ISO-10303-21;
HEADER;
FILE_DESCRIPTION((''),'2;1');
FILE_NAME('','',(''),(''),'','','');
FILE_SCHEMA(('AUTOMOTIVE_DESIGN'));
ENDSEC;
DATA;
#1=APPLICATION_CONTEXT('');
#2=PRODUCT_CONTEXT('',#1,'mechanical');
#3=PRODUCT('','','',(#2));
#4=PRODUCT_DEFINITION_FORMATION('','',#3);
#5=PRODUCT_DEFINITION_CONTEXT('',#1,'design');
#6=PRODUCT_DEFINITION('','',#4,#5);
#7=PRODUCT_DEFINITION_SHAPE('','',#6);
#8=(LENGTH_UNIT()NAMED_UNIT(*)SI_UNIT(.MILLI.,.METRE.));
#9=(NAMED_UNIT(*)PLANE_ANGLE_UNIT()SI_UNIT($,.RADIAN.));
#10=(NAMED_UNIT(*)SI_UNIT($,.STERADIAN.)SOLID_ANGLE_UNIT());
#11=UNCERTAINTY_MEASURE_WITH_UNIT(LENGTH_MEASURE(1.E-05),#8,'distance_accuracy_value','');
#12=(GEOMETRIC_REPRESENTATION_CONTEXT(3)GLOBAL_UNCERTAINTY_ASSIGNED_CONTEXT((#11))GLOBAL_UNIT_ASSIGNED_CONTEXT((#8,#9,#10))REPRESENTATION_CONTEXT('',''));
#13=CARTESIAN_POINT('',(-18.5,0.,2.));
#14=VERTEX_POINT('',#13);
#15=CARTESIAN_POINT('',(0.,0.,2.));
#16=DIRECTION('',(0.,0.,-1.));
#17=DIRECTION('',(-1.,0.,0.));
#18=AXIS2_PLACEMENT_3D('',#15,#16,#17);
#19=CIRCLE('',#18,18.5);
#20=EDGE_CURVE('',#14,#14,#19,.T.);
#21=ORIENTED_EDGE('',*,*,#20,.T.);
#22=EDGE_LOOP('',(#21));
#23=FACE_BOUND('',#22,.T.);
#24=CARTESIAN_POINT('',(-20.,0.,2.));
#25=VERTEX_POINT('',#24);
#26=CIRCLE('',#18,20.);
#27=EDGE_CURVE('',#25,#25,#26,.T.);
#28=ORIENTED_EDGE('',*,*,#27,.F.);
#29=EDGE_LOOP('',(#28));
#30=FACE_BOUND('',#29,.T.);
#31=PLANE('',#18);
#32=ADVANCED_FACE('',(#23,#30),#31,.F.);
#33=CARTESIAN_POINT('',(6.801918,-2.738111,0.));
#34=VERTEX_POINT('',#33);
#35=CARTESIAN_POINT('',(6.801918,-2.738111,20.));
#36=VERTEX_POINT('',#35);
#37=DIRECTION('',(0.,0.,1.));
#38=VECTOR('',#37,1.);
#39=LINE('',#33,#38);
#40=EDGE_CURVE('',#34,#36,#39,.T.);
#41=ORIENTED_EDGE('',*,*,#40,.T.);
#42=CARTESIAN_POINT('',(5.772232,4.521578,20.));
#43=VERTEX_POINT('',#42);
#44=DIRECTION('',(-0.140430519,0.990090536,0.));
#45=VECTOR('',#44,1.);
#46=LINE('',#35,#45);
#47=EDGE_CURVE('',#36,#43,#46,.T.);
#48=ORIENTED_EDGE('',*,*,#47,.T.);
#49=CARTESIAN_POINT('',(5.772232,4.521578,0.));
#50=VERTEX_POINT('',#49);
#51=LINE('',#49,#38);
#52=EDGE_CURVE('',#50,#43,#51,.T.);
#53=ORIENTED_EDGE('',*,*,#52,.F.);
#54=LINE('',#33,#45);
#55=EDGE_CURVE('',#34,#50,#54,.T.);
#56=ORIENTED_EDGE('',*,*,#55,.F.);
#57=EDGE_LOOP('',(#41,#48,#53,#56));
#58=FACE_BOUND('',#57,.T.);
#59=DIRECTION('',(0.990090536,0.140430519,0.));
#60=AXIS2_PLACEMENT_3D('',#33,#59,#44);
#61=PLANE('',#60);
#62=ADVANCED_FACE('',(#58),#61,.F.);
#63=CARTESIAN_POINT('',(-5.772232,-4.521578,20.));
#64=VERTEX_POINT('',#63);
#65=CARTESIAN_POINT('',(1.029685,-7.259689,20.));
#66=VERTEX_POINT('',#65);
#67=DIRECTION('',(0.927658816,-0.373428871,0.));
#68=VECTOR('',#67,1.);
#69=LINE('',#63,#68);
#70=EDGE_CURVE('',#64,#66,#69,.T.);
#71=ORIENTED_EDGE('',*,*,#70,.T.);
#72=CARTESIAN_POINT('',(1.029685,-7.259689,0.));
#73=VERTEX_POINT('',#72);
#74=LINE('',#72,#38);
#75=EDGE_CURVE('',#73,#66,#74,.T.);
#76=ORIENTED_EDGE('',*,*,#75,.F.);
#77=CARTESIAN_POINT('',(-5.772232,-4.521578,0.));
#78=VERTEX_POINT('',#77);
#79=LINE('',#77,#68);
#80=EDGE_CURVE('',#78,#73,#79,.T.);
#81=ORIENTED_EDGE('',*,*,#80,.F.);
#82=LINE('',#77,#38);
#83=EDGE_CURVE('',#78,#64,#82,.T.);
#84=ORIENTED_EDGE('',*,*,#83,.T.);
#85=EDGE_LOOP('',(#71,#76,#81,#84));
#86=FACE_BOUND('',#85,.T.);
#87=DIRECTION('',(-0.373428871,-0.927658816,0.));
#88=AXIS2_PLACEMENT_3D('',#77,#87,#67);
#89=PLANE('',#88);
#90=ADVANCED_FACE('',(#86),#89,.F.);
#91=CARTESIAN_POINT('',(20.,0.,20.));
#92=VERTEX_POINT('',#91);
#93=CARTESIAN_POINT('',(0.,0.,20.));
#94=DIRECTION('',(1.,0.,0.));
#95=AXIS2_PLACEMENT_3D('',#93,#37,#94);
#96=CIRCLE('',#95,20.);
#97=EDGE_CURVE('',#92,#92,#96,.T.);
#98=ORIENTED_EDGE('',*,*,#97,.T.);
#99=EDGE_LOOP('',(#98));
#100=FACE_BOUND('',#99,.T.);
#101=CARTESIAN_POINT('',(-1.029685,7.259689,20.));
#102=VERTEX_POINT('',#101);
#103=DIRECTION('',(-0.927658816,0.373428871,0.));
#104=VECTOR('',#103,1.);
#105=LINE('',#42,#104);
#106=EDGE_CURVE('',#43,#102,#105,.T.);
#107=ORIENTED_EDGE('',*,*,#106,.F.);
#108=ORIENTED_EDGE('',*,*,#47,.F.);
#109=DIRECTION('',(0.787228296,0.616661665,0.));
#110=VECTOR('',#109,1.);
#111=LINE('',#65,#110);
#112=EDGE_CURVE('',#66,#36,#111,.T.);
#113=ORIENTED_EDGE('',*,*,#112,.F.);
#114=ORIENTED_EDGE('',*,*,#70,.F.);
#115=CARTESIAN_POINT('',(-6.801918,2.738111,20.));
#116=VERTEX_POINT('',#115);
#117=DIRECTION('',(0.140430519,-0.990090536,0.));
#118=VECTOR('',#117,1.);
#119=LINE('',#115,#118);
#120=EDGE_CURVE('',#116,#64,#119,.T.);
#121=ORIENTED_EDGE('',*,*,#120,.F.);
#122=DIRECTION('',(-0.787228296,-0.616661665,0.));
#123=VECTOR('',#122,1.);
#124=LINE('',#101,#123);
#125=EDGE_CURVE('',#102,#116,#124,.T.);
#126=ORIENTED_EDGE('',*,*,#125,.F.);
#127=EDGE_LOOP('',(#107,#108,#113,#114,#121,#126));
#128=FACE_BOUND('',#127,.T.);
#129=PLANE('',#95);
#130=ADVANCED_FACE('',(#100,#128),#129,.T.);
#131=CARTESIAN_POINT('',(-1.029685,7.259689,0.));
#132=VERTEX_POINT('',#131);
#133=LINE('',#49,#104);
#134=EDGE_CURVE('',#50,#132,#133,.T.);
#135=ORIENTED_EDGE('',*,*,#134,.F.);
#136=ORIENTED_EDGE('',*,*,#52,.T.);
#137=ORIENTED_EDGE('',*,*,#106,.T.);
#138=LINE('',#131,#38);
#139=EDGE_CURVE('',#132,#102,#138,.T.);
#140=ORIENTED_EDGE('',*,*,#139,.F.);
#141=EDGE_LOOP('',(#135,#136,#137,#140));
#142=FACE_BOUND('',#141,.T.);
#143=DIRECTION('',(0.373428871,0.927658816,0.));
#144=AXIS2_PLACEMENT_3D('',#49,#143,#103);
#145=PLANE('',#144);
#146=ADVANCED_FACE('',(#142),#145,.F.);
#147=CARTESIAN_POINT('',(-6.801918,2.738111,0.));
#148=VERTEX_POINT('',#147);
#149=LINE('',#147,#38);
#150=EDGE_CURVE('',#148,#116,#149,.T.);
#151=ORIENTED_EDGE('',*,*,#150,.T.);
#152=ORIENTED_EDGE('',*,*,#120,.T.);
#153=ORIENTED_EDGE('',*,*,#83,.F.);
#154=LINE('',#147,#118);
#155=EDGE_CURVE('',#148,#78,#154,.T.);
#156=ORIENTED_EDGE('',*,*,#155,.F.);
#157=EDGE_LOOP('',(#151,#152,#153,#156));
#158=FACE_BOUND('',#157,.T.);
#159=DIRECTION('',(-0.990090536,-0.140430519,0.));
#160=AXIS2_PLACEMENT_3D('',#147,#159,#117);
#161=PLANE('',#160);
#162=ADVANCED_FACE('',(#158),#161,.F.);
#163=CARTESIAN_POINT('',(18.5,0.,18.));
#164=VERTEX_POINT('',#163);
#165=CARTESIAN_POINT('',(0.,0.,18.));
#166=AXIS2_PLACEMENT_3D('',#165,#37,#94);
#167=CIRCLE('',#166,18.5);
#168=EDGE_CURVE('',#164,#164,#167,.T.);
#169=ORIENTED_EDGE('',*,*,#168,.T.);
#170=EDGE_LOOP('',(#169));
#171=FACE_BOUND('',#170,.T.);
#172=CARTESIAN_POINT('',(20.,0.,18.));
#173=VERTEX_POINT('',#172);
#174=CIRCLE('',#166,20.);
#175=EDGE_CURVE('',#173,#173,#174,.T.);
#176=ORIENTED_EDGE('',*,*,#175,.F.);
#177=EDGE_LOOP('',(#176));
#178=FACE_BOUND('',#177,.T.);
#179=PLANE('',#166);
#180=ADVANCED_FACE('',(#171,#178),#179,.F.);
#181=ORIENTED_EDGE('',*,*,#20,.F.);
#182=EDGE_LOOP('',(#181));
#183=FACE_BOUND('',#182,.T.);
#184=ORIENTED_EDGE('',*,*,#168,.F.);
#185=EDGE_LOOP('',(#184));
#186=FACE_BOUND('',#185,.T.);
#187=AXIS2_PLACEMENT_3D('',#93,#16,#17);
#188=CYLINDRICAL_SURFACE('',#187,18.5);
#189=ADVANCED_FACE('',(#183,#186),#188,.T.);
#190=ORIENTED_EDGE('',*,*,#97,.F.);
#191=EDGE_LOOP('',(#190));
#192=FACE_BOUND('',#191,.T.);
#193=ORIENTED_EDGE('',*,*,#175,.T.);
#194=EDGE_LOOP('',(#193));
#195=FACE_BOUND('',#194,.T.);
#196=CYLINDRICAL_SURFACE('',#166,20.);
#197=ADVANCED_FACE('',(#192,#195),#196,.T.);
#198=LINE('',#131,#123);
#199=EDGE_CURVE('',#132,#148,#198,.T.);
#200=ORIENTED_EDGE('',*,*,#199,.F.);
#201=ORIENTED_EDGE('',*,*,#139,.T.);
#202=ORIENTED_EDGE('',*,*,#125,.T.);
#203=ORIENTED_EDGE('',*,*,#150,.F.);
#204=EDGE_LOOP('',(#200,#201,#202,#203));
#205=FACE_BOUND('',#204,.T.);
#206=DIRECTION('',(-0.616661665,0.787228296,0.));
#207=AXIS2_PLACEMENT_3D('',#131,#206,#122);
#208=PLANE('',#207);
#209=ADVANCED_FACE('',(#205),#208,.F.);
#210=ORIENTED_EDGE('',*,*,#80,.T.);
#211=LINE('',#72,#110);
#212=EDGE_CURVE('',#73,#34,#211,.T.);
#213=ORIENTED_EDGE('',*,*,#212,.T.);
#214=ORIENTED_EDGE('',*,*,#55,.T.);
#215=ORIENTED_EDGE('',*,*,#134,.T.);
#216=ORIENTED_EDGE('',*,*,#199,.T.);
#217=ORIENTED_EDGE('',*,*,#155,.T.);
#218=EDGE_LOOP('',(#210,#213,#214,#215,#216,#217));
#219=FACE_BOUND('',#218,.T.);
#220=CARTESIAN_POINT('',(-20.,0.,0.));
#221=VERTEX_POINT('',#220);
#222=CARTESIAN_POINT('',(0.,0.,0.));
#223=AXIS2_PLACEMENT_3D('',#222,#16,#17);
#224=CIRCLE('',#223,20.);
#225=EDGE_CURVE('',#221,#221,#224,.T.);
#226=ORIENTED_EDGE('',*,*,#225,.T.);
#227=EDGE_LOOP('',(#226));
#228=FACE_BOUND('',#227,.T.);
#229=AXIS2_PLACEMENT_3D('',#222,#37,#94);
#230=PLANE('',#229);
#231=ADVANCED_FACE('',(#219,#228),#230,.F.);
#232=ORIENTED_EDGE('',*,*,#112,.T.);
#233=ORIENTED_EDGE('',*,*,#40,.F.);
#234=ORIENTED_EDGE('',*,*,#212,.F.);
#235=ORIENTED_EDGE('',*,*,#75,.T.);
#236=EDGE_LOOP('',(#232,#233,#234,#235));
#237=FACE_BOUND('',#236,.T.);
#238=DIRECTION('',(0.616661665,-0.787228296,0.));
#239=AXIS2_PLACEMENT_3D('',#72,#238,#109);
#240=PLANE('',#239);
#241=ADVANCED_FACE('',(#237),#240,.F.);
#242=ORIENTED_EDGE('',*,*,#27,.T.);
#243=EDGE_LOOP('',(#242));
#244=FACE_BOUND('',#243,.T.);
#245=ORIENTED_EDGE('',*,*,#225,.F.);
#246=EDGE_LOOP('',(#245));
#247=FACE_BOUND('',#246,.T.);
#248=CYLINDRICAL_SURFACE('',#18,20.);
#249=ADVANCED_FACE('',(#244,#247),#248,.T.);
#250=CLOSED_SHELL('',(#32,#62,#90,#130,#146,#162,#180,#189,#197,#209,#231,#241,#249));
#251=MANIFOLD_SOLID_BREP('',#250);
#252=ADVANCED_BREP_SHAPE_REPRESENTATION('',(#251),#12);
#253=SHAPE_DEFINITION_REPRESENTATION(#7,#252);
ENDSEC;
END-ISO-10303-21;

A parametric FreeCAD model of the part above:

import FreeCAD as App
import Part
import Sketcher
from FreeCAD import Vector

doc = App.newDocument("Part")
body = doc.addObject("PartDesign::Body", "Body")

# Sketch on XY plane
sketch1 = body.newObject("Sketcher::SketchObject", "Sketch")
sketch1.AttachmentSupport = (doc.getObject("XY_Plane"), [""])
sketch1.MapMode = "FlatFace"
sketch1.addGeometry(Part.Circle(Vector(0, 0, 0), Vector(0, 0, 1), 18), False)
sketch1.addConstraint([
    Sketcher.Constraint("Coincident", 0, 3, -1, 1),
    Sketcher.Constraint("Diameter", 0, 37.0),
])
pad1 = body.newObject("PartDesign::Pad", "Pad")
pad1.Profile = sketch1
pad1.Length = 20

# Sketch on XY plane
sketch2 = body.newObject("Sketcher::SketchObject", "Sketch001")
sketch2.AttachmentSupport = (doc.getObject("XY_Plane"), [""])
sketch2.MapMode = "FlatFace"
sketch2.AttachmentOffset = App.Placement(Vector(0, 0, 20), App.Rotation())
sketch2.addGeometry(Part.Circle(Vector(0, 0, 0), Vector(0, 0, 1), 20), False)
sketch2.addConstraint([
    Sketcher.Constraint("Coincident", 0, 3, -1, 1),
    Sketcher.Constraint("Diameter", 0, 40.0),
])
pad2 = body.newObject("PartDesign::Pad", "Pad001")
pad2.Profile = sketch2
pad2.Length = 2
pad2.Reversed = True

# Sketch on XY plane
sketch3 = body.newObject("Sketcher::SketchObject", "Sketch002")
sketch3.AttachmentSupport = (doc.getObject("XY_Plane"), [""])
sketch3.MapMode = "FlatFace"
sketch3.addGeometry(Part.Circle(Vector(0, 0, 0), Vector(0, 0, 1), 20), False)
sketch3.addConstraint([
    Sketcher.Constraint("Coincident", 0, 3, -1, 1),
    Sketcher.Constraint("Diameter", 0, 40.0),
])
pad3 = body.newObject("PartDesign::Pad", "Pad002")
pad3.Profile = sketch3
pad3.Length = 2

# Sketch on XY plane
sketch4 = body.newObject("Sketcher::SketchObject", "Sketch003")
sketch4.AttachmentSupport = (doc.getObject("XY_Plane"), [""])
sketch4.MapMode = "FlatFace"
sketch4.AttachmentOffset = App.Placement(Vector(0, 0, 20), App.Rotation())
sketch4.addGeometry([
    Part.LineSegment(Vector(6, 5, 0), Vector(-1, 7, 0)),  # 0
    Part.LineSegment(Vector(-1, 7, 0), Vector(-7, 3, 0)),  # 1
    Part.LineSegment(Vector(-7, 3, 0), Vector(-6, -5, 0)),  # 2
    Part.LineSegment(Vector(-6, -5, 0), Vector(1, -7, 0)),  # 3
    Part.LineSegment(Vector(1, -7, 0), Vector(7, -3, 0)),  # 4
    Part.LineSegment(Vector(7, -3, 0), Vector(6, 5, 0)),  # 5
], False)
sketch4.addConstraint([
    Sketcher.Constraint("Coincident", 0, 2, 1, 1),
    Sketcher.Constraint("Coincident", 1, 2, 2, 1),
    Sketcher.Constraint("Coincident", 2, 2, 3, 1),
    Sketcher.Constraint("Coincident", 3, 2, 4, 1),
    Sketcher.Constraint("Coincident", 4, 2, 5, 1),
    Sketcher.Constraint("Coincident", 5, 2, 0, 1),
    Sketcher.Constraint("Symmetric", 0, 2, 3, 2, -1, 1),
    Sketcher.Constraint("Symmetric", 1, 2, 4, 2, -1, 1),
    Sketcher.Constraint("Symmetric", 2, 2, 5, 2, -1, 1),
    Sketcher.Constraint("Equal", 0, 1),
    Sketcher.Constraint("Equal", 1, 2),
    Sketcher.Constraint("DistanceY", 3, 2, 1, 2, 9.997799),
    Sketcher.Constraint("Distance", 0, 7.332348),
    Sketcher.Constraint("DistanceY", -1, 1, 0, 2, 7.259689),
    Sketcher.Constraint("DistanceY", 2, 2, -1, 1, 4.521578),
])
pocket1 = body.newObject("PartDesign::Pocket", "Pocket")
pocket1.Profile = sketch4
pocket1.Type = "ThroughAll"

doc.recompute()
